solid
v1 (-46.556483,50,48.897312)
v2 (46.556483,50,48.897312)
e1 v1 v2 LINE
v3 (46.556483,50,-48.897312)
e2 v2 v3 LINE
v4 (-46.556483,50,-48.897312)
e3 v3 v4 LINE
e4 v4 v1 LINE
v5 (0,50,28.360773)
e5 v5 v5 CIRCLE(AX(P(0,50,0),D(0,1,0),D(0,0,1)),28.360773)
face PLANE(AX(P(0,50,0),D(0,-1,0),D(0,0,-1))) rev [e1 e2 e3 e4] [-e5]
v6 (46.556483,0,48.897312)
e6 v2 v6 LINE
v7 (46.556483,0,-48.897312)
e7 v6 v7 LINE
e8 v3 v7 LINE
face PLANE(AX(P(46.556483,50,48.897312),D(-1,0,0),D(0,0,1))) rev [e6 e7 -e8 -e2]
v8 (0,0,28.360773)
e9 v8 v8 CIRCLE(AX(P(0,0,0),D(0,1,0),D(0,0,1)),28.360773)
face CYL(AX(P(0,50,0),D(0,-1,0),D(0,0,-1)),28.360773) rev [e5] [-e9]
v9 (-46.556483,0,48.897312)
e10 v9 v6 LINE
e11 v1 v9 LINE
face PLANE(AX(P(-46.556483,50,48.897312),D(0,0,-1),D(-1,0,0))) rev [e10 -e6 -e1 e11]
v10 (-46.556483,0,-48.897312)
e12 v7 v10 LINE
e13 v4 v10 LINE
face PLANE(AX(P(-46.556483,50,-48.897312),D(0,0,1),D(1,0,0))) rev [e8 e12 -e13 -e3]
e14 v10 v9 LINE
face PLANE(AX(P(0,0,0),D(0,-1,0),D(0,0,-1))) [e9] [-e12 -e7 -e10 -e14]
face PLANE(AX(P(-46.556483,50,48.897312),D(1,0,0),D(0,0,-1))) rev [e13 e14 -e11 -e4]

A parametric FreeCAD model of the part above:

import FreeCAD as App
import Part
import Sketcher
Q = App.Units.Quantity


def add_polygon(sketch, points):
    """Adds a closed chain of lines whose ends are joined by coincident constraints."""
    first, n = sketch.GeometryCount, len(points)
    for a, b in zip(points, points[1:] + points[:1]):
        sketch.addGeometry(Part.LineSegment(App.Vector(*a, 0), App.Vector(*b, 0)), False)
    for i in range(n):
        sketch.addConstraint(Sketcher.Constraint("Coincident", first + i, 2, first + (i + 1) % n, 1))

doc = App.newDocument("Part")
params = doc.addObject("Spreadsheet::Sheet", "Params")
for row, (alias, value) in enumerate([
    ("pad1_length", "50 mm"),
], start=1):
    params.set(f"A{row}", alias)
    params.set(f"B{row}", "=" + value)
    params.setAlias(f"B{row}", alias)

body = doc.addObject("PartDesign::Body", "Body")

# Sketch on XZ plane
sketch1 = body.newObject("Sketcher::SketchObject", "Sketch")
sketch1.AttachmentSupport = (doc.getObject("XZ_Plane"), [""])
sketch1.MapMode = "FlatFace"
add_polygon(sketch1, [(-47, -49), (-47, 49), (47, 49), (47, -49)])  # lines 0-3
sketch1.addGeometry(Part.Circle(App.Vector(0, 0, 0), App.Vector(0, 0, 1), 28), False)  # 4
sketch1.addConstraint([
    Sketcher.Constraint("Vertical", 0),
    Sketcher.Constraint("Horizontal", 1),
    Sketcher.Constraint("Vertical", 2),
    Sketcher.Constraint("Horizontal", 3),
    Sketcher.Constraint("Coincident", 4, 3, -1, 1),
    Sketcher.Constraint("Symmetric", 0, 2, 2, 2, -1, 1),
    Sketcher.Constraint("Diameter", 4, Q("56.721546 mm")),
    Sketcher.Constraint("DistanceX", 1, 1, 1, 2, Q("93.112966 mm")),
    Sketcher.Constraint("DistanceY", 0, 1, 0, 2, Q("97.794623 mm")),
])
pad1 = body.newObject("PartDesign::Pad", "Pad")
pad1.Profile = sketch1
pad1.setExpression("Length", "Params.pad1_length")
pad1.Reversed = True

doc.recompute()
